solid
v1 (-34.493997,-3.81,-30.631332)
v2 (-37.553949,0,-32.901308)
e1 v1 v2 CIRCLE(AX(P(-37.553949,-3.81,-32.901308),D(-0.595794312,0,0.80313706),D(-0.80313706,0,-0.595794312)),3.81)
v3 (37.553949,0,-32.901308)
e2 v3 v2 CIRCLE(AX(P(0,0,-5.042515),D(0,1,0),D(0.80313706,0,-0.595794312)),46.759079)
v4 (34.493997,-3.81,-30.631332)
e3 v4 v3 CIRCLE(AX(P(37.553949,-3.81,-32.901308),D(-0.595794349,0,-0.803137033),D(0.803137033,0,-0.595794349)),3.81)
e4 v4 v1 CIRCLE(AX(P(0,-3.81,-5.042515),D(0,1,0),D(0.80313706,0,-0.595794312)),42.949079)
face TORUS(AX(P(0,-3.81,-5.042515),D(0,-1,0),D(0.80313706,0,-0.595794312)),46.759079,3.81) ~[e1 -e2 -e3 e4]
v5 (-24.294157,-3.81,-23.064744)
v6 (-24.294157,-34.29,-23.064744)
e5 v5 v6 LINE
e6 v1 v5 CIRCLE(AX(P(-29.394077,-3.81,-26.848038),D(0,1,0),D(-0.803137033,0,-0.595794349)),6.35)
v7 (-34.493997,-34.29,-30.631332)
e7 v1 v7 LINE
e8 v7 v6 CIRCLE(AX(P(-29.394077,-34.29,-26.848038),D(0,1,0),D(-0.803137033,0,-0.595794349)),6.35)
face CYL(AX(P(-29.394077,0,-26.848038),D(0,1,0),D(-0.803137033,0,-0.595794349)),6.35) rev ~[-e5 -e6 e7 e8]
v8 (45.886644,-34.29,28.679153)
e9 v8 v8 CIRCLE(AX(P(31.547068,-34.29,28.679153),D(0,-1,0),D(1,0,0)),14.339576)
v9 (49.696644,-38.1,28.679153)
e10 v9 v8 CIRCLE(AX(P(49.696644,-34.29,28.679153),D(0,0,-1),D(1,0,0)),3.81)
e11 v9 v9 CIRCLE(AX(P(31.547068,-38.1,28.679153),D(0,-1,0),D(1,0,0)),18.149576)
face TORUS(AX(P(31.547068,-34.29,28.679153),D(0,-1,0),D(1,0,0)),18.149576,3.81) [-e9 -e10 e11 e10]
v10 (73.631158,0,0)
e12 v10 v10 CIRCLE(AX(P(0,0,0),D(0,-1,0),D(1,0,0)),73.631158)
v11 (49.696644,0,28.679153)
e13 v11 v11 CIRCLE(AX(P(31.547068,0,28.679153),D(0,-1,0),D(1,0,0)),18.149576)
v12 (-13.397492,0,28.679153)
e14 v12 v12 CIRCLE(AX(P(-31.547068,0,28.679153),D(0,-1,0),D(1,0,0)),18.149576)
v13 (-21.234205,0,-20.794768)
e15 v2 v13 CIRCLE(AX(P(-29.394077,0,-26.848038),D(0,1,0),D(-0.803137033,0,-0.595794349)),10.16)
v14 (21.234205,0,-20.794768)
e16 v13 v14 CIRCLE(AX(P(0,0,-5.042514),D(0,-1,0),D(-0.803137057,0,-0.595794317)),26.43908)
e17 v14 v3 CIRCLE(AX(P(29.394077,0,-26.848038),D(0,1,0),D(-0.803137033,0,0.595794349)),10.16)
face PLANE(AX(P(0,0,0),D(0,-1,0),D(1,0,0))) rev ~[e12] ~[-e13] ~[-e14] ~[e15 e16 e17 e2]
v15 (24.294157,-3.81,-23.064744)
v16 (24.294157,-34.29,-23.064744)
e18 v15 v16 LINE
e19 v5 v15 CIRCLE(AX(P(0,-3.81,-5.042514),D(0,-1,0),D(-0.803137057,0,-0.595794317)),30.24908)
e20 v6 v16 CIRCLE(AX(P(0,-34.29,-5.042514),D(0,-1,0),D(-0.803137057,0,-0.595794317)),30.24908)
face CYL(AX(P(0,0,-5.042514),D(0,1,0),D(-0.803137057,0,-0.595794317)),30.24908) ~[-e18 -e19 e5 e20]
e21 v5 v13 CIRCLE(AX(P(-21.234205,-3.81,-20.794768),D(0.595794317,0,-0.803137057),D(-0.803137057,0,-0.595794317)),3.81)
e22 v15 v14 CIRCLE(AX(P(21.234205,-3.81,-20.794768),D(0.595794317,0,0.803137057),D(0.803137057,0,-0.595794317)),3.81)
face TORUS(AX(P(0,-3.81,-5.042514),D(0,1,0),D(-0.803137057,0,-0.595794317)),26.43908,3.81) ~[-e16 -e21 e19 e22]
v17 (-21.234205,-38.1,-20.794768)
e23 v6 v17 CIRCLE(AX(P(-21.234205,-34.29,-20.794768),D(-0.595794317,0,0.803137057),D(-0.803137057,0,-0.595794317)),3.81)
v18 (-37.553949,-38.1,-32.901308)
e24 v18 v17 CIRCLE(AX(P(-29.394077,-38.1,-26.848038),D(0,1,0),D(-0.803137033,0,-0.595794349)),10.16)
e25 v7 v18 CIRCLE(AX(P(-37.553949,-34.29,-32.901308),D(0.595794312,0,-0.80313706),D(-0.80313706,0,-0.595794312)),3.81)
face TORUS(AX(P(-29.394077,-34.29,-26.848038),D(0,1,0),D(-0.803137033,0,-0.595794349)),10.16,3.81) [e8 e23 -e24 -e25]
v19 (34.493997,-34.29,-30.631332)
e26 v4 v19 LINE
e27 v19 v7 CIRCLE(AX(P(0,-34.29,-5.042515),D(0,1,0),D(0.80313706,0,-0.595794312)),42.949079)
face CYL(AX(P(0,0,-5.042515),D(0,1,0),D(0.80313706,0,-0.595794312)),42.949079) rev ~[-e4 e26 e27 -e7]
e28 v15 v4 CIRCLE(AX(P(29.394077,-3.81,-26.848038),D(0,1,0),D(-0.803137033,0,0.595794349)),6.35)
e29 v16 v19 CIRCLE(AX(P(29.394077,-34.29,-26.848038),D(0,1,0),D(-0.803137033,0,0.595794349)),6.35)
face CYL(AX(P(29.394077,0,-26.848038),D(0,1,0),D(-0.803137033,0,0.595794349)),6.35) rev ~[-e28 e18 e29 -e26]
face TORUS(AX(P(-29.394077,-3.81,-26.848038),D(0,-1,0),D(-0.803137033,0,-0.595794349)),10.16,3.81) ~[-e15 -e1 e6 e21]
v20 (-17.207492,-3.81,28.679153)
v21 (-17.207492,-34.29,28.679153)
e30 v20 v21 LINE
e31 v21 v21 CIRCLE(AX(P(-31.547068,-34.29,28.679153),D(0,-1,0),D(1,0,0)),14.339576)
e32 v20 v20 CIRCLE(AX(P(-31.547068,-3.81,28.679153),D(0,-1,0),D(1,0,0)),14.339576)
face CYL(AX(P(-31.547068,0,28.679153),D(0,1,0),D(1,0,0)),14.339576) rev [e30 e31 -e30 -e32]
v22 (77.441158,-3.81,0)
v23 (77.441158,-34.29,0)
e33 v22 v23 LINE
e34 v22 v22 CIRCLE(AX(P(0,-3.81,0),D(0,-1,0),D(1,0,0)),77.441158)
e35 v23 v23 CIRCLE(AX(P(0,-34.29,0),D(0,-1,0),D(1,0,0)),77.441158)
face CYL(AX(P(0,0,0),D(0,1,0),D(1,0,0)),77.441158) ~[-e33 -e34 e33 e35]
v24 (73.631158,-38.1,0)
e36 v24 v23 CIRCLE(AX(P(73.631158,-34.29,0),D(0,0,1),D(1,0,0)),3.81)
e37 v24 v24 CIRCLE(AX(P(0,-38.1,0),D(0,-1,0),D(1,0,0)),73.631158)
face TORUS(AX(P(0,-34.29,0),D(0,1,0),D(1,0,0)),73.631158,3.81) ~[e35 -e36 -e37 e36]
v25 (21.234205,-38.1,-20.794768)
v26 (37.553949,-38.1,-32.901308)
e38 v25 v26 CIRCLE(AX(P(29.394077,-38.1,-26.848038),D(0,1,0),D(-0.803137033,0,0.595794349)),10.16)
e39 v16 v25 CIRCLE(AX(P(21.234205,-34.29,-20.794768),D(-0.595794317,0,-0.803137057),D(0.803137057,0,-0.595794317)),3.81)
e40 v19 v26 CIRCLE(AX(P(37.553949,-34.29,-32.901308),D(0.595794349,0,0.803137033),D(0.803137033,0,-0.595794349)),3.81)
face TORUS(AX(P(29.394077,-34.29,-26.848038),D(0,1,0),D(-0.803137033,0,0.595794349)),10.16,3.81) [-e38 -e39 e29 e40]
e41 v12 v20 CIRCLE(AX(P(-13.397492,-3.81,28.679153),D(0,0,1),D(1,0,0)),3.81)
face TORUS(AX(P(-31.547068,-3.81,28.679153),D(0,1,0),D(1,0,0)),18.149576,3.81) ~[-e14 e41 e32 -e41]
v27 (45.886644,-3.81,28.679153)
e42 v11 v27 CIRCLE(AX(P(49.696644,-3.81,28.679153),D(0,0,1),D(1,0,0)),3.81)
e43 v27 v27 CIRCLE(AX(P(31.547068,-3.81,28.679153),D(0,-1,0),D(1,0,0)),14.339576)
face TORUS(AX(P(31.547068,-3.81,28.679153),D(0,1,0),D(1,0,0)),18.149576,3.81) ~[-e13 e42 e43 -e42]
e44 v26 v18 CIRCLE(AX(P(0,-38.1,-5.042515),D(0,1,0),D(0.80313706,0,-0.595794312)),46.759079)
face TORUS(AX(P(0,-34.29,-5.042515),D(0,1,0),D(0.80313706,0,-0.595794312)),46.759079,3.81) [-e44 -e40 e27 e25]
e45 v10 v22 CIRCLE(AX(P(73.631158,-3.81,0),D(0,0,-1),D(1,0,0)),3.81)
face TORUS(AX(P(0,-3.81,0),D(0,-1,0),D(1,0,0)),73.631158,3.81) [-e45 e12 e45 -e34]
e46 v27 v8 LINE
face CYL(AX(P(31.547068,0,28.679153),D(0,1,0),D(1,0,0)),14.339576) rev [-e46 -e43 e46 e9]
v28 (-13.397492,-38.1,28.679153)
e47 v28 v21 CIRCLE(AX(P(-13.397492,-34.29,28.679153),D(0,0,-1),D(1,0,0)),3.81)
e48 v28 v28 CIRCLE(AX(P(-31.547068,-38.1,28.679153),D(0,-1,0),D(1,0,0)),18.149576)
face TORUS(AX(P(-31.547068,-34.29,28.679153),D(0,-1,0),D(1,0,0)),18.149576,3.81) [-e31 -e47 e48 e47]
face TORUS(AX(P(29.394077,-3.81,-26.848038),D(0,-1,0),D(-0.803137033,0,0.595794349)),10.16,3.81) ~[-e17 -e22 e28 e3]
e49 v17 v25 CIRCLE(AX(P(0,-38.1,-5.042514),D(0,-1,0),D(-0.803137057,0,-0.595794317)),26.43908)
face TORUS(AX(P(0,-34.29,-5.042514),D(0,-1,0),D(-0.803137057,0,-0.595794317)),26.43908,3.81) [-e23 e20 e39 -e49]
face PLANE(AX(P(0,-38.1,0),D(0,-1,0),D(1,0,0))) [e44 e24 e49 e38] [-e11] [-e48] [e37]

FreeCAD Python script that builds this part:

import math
import FreeCAD as App
import Part
import Sketcher
from FreeCAD import Vector
Q = App.Units.Quantity


def edges_at(feature, points):
    """Names of the edges that pass closest to the given points."""
    edges = feature.Shape.Edges
    near = lambda p: min(range(len(edges)), key=lambda i: edges[i].distToShape(Part.Vertex(*p))[0])
    return sorted({f"Edge{near(p) + 1}" for p in points})

doc = App.newDocument("Part")
body = doc.addObject("PartDesign::Body", "Body")

sketch1 = body.newObject("Sketcher::SketchObject", "Sketch")
sketch1.AttachmentSupport = (doc.getObject("XZ_Plane"), [""])
sketch1.MapMode = "FlatFace"
sketch1.addGeometry([
    Part.Circle(Vector(0, 0, 0), Vector(0, 0, 1), 77),
    Part.ArcOfCircle(Part.Circle(Vector(29, -27, 0), Vector(0, 0, 1), 6), math.radians(-37), math.radians(143)),
    Part.ArcOfCircle(Part.Circle(Vector(0, -5, 0), Vector(0, 0, 1), 43), math.radians(-143), math.radians(-37)),
    Part.ArcOfCircle(Part.Circle(Vector(-29, -27, 0), Vector(0, 0, 1), 6), math.radians(37), math.radians(217)),
    Part.ArcOfCircle(Part.Circle(Vector(0, -5, 0), Vector(0, 0, 1), 30), math.radians(-143), math.radians(-37)),
    Part.Circle(Vector(-32, 29, 0), Vector(0, 0, 1), 14),
    Part.Circle(Vector(32, 29, 0), Vector(0, 0, 1), 14),
], False)
sketch1.addConstraint([
    Sketcher.Constraint("Tangent", 1, 1, 2, 2),
    Sketcher.Constraint("Tangent", 2, 1, 3, 2),
    Sketcher.Constraint("Tangent", 3, 1, 4, 1),
    Sketcher.Constraint("Tangent", 4, 2, 1, 2),
    Sketcher.Constraint("Coincident", 0, 3, -1, 1),
    Sketcher.Constraint("Coincident", 4, 3, 2, 3),
    Sketcher.Constraint("Equal", 5, 6),
    Sketcher.Constraint("Symmetric", 1, 3, 3, 3, -2),
    Sketcher.Constraint("Symmetric", 5, 3, 6, 3, -2),
    Sketcher.Constraint("Radius", 1, Q("0.25 in")),
    Sketcher.Constraint("Diameter", 5, 28.679152),
    Sketcher.Constraint("Radius", 2, 42.949079),
    Sketcher.Constraint("Diameter", 0, 154.882316),
    Sketcher.Constraint("DistanceY", 2, 1, -1, 1, 30.631332),
    Sketcher.Constraint("DistanceY", 2, 3, 5, 3, 33.721668),
    Sketcher.Constraint("DistanceX", 5, 3, 3, 3, 2.152991),
    Sketcher.Constraint("DistanceY", 3, 3, 5, 3, 55.527191),
])
pad1 = body.newObject("PartDesign::Pad", "Pad")
pad1.Profile = sketch1
pad1.Length = Q("1.5 in")
doc.recompute()

fillet = body.newObject("PartDesign::Fillet", "Fillet")
fillet.Base = (pad1, edges_at(pad1, [(0, -38.1, -35.292), (-33.177, -38.1, -21.748)]))
fillet.Radius = Q("0.15 in")
doc.recompute()

fillet2 = body.newObject("PartDesign::Fillet", "Fillet001")
fillet2.Base = (fillet, edges_at(fillet, [
    (-45.887, -38.1, 28.679),
    (17.207, -38.1, 28.679),
    (-77.441, -38.1, 0),
    (-77.441, 0, 0),
    (0, 0, -35.292),
    (17.207, 0, 28.679),
    (-45.887, 0, 28.679),
]))
fillet2.Radius = Q("0.15 in")

doc.recompute()
